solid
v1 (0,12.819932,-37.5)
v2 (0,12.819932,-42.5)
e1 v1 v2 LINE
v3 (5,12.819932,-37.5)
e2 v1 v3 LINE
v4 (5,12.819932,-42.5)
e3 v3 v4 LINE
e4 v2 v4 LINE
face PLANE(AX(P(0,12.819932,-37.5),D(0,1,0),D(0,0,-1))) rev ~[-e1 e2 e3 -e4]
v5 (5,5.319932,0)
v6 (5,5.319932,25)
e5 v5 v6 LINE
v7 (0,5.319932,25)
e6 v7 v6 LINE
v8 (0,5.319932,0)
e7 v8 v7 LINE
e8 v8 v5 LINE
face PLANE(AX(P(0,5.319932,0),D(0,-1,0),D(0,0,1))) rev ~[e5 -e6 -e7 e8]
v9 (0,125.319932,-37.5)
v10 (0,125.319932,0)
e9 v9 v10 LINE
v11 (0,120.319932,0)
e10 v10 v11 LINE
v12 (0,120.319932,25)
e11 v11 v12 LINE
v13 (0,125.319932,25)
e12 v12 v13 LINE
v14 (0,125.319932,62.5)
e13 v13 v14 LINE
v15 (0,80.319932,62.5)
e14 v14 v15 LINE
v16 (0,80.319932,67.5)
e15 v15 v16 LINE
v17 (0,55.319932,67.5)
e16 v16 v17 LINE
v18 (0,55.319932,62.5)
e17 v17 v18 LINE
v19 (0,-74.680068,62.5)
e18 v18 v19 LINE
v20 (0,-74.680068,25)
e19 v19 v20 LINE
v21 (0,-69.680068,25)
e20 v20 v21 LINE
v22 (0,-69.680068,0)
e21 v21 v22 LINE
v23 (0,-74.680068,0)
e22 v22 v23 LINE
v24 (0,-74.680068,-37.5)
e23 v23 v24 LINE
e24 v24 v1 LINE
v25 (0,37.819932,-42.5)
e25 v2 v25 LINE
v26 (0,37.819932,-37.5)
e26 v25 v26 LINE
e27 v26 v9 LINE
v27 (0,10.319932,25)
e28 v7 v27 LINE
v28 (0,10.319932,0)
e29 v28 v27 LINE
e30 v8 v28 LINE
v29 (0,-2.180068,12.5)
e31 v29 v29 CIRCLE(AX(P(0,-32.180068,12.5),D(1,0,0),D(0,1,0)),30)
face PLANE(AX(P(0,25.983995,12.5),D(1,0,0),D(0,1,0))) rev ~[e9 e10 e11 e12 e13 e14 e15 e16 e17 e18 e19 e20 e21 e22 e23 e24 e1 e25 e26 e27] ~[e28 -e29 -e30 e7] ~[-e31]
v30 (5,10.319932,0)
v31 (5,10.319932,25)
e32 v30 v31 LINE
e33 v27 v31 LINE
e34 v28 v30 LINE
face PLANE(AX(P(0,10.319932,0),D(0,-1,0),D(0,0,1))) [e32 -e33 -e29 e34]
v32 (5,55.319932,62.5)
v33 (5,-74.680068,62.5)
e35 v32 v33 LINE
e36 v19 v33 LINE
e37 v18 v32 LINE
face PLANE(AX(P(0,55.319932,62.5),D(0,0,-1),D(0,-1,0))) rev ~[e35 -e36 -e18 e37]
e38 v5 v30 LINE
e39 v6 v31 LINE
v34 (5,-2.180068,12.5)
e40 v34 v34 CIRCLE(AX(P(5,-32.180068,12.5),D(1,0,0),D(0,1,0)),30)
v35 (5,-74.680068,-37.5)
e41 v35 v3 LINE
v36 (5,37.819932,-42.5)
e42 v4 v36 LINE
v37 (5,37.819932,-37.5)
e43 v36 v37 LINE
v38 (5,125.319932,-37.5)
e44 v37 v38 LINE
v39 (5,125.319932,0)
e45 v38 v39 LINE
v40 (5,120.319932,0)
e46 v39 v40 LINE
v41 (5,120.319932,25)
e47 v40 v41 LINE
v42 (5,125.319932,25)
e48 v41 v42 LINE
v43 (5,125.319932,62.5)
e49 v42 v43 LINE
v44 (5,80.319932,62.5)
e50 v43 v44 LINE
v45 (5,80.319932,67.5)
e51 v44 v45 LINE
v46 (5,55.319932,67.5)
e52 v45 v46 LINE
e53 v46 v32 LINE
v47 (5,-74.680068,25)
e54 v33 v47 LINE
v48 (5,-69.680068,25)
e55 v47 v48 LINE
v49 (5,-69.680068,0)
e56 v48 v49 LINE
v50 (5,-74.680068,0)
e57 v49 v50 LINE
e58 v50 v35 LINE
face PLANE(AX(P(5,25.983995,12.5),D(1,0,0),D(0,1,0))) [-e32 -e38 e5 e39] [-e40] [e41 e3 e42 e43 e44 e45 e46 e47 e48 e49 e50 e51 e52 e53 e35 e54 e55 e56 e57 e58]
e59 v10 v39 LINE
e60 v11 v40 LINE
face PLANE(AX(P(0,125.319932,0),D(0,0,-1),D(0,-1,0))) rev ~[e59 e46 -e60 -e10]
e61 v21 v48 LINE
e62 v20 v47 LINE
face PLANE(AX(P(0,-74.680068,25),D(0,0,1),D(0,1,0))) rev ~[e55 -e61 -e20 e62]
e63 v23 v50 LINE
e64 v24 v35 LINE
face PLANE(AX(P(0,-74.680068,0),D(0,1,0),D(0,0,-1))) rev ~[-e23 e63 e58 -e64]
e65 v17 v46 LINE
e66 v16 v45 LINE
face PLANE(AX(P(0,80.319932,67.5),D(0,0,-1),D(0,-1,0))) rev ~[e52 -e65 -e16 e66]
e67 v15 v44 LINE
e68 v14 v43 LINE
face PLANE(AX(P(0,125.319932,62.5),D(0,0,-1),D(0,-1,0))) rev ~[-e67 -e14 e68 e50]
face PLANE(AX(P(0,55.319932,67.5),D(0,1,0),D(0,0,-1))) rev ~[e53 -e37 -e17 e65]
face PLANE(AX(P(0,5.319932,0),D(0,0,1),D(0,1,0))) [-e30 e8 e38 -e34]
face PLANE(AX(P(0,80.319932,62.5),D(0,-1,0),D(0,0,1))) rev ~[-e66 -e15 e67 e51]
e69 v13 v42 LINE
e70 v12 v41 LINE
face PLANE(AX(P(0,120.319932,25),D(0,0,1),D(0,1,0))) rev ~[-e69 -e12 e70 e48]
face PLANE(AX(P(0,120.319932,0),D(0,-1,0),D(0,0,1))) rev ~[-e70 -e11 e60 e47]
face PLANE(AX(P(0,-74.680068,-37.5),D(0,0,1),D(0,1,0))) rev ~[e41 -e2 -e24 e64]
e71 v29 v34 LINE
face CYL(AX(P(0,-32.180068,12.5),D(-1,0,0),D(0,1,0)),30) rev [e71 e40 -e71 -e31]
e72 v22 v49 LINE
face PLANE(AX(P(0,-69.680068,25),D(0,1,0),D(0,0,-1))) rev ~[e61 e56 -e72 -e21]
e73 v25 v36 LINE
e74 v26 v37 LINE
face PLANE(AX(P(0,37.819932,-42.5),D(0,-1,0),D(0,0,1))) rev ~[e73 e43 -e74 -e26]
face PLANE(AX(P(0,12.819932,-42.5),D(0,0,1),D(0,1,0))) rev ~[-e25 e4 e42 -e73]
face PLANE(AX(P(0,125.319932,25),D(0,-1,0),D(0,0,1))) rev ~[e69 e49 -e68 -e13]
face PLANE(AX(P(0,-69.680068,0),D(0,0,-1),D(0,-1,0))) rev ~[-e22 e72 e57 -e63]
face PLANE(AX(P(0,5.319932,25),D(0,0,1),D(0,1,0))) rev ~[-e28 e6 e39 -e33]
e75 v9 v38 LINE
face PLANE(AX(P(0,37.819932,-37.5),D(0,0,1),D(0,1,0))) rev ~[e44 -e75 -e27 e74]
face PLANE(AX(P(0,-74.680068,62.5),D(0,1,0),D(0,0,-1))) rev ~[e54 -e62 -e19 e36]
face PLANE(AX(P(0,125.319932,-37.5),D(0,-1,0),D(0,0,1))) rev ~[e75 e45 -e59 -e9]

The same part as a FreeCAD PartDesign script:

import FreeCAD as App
import Part
import Sketcher
from FreeCAD import Vector

doc = App.newDocument("Part")
body = doc.addObject("PartDesign::Body", "Body")

# Sketch on YZ plane
sketch1 = doc.addObject("Sketcher::SketchObject", "Sketch")
body.addObject(sketch1)
sketch1.AttachmentSupport = (doc.YZ_Plane, [""])
sketch1.MapMode = "FlatFace"
sketch1.addGeometry([
    Part.LineSegment(Vector(125, 62, 0), Vector(80, 62, 0)),  # 0
    Part.LineSegment(Vector(80, 62, 0), Vector(80, 68, 0)),  # 1
    Part.LineSegment(Vector(80, 68, 0), Vector(55, 68, 0)),  # 2
    Part.LineSegment(Vector(55, 68, 0), Vector(55, 62, 0)),  # 3
    Part.LineSegment(Vector(55, 62, 0), Vector(-75, 62, 0)),  # 4
    Part.LineSegment(Vector(-75, 62, 0), Vector(-75, 25, 0)),  # 5
    Part.LineSegment(Vector(-75, 25, 0), Vector(-70, 25, 0)),  # 6
    Part.LineSegment(Vector(-70, 25, 0), Vector(-70, 0, 0)),  # 7
    Part.LineSegment(Vector(-70, 0, 0), Vector(-75, 0, 0)),  # 8
    Part.LineSegment(Vector(-75, 0, 0), Vector(-75, -38, 0)),  # 9
    Part.LineSegment(Vector(-75, -38, 0), Vector(13, -38, 0)),  # 10
    Part.LineSegment(Vector(13, -38, 0), Vector(13, -42, 0)),  # 11
    Part.LineSegment(Vector(13, -42, 0), Vector(38, -42, 0)),  # 12
    Part.LineSegment(Vector(38, -42, 0), Vector(38, -38, 0)),  # 13
    Part.LineSegment(Vector(38, -38, 0), Vector(125, -38, 0)),  # 14
    Part.LineSegment(Vector(125, -38, 0), Vector(125, 0, 0)),  # 15
    Part.LineSegment(Vector(125, 0, 0), Vector(120, 0, 0)),  # 16
    Part.LineSegment(Vector(120, 0, 0), Vector(120, 25, 0)),  # 17
    Part.LineSegment(Vector(120, 25, 0), Vector(125, 25, 0)),  # 18
    Part.LineSegment(Vector(125, 25, 0), Vector(125, 62, 0)),  # 19
    Part.Circle(Vector(-32, 12, 0), Vector(0, 0, 1), 30),  # 20
    Part.LineSegment(Vector(10, 0, 0), Vector(5, 0, 0)),  # 21
    Part.LineSegment(Vector(5, 0, 0), Vector(5, 25, 0)),  # 22
    Part.LineSegment(Vector(5, 25, 0), Vector(10, 25, 0)),  # 23
    Part.LineSegment(Vector(10, 25, 0), Vector(10, 0, 0)),  # 24
], False)
sketch1.addConstraint([
    Sketcher.Constraint("Coincident", 0, 2, 1, 1),
    Sketcher.Constraint("Coincident", 1, 2, 2, 1),
    Sketcher.Constraint("Coincident", 2, 2, 3, 1),
    Sketcher.Constraint("Coincident", 3, 2, 4, 1),
    Sketcher.Constraint("Coincident", 4, 2, 5, 1),
    Sketcher.Constraint("Coincident", 5, 2, 6, 1),
    Sketcher.Constraint("Coincident", 6, 2, 7, 1),
    Sketcher.Constraint("Coincident", 7, 2, 8, 1),
    Sketcher.Constraint("Coincident", 8, 2, 9, 1),
    Sketcher.Constraint("Coincident", 9, 2, 10, 1),
    Sketcher.Constraint("Coincident", 10, 2, 11, 1),
    Sketcher.Constraint("Coincident", 11, 2, 12, 1),
    Sketcher.Constraint("Coincident", 12, 2, 13, 1),
    Sketcher.Constraint("Coincident", 13, 2, 14, 1),
    Sketcher.Constraint("Coincident", 14, 2, 15, 1),
    Sketcher.Constraint("Coincident", 15, 2, 16, 1),
    Sketcher.Constraint("Coincident", 16, 2, 17, 1),
    Sketcher.Constraint("Coincident", 17, 2, 18, 1),
    Sketcher.Constraint("Coincident", 18, 2, 19, 1),
    Sketcher.Constraint("Coincident", 19, 2, 0, 1),
    Sketcher.Constraint("Coincident", 21, 2, 22, 1),
    Sketcher.Constraint("Coincident", 22, 2, 23, 1),
    Sketcher.Constraint("Coincident", 23, 2, 24, 1),
    Sketcher.Constraint("Coincident", 24, 2, 21, 1),
    Sketcher.Constraint("Horizontal", 0),
    Sketcher.Constraint("Vertical", 1),
    Sketcher.Constraint("Horizontal", 2),
    Sketcher.Constraint("Vertical", 3),
    Sketcher.Constraint("Horizontal", 4),
    Sketcher.Constraint("Vertical", 5),
    Sketcher.Constraint("Horizontal", 6),
    Sketcher.Constraint("Vertical", 7),
    Sketcher.Constraint("Horizontal", 8),
    Sketcher.Constraint("Vertical", 9),
    Sketcher.Constraint("Horizontal", 10),
    Sketcher.Constraint("Vertical", 11),
    Sketcher.Constraint("Horizontal", 12),
    Sketcher.Constraint("Vertical", 13),
    Sketcher.Constraint("Horizontal", 14),
    Sketcher.Constraint("Vertical", 15),
    Sketcher.Constraint("Horizontal", 16),
    Sketcher.Constraint("Vertical", 17),
    Sketcher.Constraint("Horizontal", 18),
    Sketcher.Constraint("Vertical", 19),
    Sketcher.Constraint("Horizontal", 21),
    Sketcher.Constraint("Vertical", 22),
    Sketcher.Constraint("Horizontal", 23),
    Sketcher.Constraint("Vertical", 24),
    Sketcher.Constraint("PointOnObject", 7, 2, -1),
    Sketcher.Constraint("PointOnObject", 15, 2, -1),
    Sketcher.Constraint("PointOnObject", 21, 2, -1),
    Sketcher.Constraint("Horizontal", 0, 2, 3, 2),
    Sketcher.Constraint("Horizontal", 10, 2, 13, 2),
    Sketcher.Constraint("Horizontal", 6, 2, 17, 2),
    Sketcher.Constraint("Horizontal", 18, 2, 22, 2),
    Sketcher.Constraint("Vertical", 5, 2, 8, 2),
    Sketcher.Constraint("Vertical", 15, 2, 18, 2),
    Sketcher.Constraint("Equal", 2, 12),
    Sketcher.Constraint("Equal", 10, 14),
    Sketcher.Constraint("Equal", 8, 16),
    Sketcher.Constraint("Equal", 18, 21),
    Sketcher.Constraint("Equal", 23, 1),
    Sketcher.Constraint("Equal", 12, 7),
    Sketcher.Constraint("Equal", 5, 9),
    Sketcher.Constraint("Equal", 3, 11),
    Sketcher.Constraint("Diameter", 20, 60.0),
    Sketcher.Constraint("DistanceX", 0, 2, 0, 1, 45.0),
    Sketcher.Constraint("DistanceX", 2, 2, 2, 1, 25.0),
    Sketcher.Constraint("DistanceX", 4, 2, 4, 1, 130.0),
    Sketcher.Constraint("DistanceX", 6, 1, 6, 2, 5.0),
    Sketcher.Constraint("DistanceY", 5, 2, 5, 1, 37.5),
    Sketcher.Constraint("DistanceY", 20, 3, 0, 2, 50.0),
    Sketcher.Constraint("DistanceX", 20, 3, 10, 2, 45.0),
    Sketcher.Constraint("DistanceX", 22, 2, 3, 2, 50.0),
    Sketcher.Constraint("DistanceX", -1, 1, 0, 2, 80.319932),
])
pad1 = doc.addObject("PartDesign::Pad", "Pad")
body.addObject(pad1)
pad1.Profile = sketch1
pad1.Length = 5

doc.recompute()
